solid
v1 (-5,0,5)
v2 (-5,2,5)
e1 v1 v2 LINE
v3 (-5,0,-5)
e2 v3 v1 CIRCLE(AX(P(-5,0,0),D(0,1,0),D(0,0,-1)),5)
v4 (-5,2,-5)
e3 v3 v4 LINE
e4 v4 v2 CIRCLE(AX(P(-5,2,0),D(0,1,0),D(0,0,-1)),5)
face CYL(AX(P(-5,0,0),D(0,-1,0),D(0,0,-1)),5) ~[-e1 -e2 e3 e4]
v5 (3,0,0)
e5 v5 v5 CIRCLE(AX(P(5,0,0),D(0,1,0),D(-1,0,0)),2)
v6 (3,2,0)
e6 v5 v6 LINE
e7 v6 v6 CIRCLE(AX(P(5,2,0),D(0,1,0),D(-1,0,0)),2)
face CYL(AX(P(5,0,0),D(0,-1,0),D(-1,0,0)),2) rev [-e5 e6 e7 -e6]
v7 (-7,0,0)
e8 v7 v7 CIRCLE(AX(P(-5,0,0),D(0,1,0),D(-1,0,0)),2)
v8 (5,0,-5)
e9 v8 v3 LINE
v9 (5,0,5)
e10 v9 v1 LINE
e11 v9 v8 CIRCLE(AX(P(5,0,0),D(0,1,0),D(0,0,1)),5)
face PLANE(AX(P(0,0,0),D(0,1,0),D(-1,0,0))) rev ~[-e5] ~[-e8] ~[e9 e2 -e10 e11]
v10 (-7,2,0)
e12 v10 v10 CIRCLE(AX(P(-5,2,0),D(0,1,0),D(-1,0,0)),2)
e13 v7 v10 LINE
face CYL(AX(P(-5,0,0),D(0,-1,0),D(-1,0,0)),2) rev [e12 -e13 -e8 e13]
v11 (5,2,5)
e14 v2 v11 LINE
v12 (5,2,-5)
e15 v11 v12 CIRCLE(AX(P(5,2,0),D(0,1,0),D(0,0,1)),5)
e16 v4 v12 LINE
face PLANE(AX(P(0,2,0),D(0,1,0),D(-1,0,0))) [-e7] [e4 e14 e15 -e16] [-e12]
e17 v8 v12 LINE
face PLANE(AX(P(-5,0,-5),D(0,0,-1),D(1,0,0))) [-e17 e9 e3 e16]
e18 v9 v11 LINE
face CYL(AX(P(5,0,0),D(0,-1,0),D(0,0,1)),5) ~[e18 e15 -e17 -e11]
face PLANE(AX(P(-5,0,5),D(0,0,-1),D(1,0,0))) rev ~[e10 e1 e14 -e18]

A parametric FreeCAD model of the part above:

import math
import FreeCAD as App
import Part
import Sketcher
Q = App.Units.Quantity

doc = App.newDocument("Part")
params = doc.addObject("Spreadsheet::Sheet", "Params")
for row, (alias, value) in enumerate([
    ("sketch1_diameter", "4 mm"),
    ("sketch1_radius", "5 mm"),
    ("sketch1_width", "10 mm"),
    ("pad1_length", "2 mm"),
], start=1):
    params.set(f"A{row}", alias)
    params.set(f"B{row}", "=" + value)
    params.setAlias(f"B{row}", alias)

body = doc.addObject("PartDesign::Body", "Body")

# Sketch on XZ plane
sketch1 = doc.addObject("Sketcher::SketchObject", "Sketch")
body.addObject(sketch1)
sketch1.AttachmentSupport = (doc.XZ_Plane, [""])
sketch1.MapMode = "FlatFace"
sketch1.addGeometry([
    Part.ArcOfCircle(Part.Circle(App.Vector(-5, 0, 0), App.Vector(0, 0, 1), 5), math.radians(90), math.radians(270)),  # 0
    Part.LineSegment(App.Vector(-5, 5, 0), App.Vector(5, 5, 0)),  # 1
    Part.ArcOfCircle(Part.Circle(App.Vector(5, 0, 0), App.Vector(0, 0, 1), 5), math.radians(-90), math.radians(90)),  # 2
    Part.LineSegment(App.Vector(5, -5, 0), App.Vector(-5, -5, 0)),  # 3
    Part.Circle(App.Vector(-5, 0, 0), App.Vector(0, 0, 1), 2),  # 4
    Part.Circle(App.Vector(5, 0, 0), App.Vector(0, 0, 1), 2),  # 5
], False)
sketch1.addConstraint([
    Sketcher.Constraint("Tangent", 0, 1, 1, 1),
    Sketcher.Constraint("Tangent", 1, 2, 2, 2),
    Sketcher.Constraint("Tangent", 2, 1, 3, 1),
    Sketcher.Constraint("Tangent", 3, 2, 0, 2),
    Sketcher.Constraint("Horizontal", 1),
    Sketcher.Constraint("Horizontal", 3),
    Sketcher.Constraint("Coincident", 4, 3, 0, 3),
    Sketcher.Constraint("Coincident", 5, 3, 2, 3),
    Sketcher.Constraint("Equal", 4, 5),
    Sketcher.Constraint("Symmetric", 0, 3, 2, 3, -1, 1),
    Sketcher.Constraint("Diameter", 4, Q("4 mm")),
    Sketcher.Constraint("Radius", 0, Q("5 mm")),
    Sketcher.Constraint("DistanceX", 1, 1, 1, 2, Q("10 mm")),
])
sketch1.setExpression("Constraints[10]", "Params.sketch1_diameter")
sketch1.setExpression("Constraints[11]", "Params.sketch1_radius")
sketch1.setExpression("Constraints[12]", "Params.sketch1_width")
pad1 = doc.addObject("PartDesign::Pad", "Pad")
body.addObject(pad1)
pad1.Profile = sketch1
pad1.setExpression("Length", "Params.pad1_length")
pad1.Reversed = True

doc.recompute()
